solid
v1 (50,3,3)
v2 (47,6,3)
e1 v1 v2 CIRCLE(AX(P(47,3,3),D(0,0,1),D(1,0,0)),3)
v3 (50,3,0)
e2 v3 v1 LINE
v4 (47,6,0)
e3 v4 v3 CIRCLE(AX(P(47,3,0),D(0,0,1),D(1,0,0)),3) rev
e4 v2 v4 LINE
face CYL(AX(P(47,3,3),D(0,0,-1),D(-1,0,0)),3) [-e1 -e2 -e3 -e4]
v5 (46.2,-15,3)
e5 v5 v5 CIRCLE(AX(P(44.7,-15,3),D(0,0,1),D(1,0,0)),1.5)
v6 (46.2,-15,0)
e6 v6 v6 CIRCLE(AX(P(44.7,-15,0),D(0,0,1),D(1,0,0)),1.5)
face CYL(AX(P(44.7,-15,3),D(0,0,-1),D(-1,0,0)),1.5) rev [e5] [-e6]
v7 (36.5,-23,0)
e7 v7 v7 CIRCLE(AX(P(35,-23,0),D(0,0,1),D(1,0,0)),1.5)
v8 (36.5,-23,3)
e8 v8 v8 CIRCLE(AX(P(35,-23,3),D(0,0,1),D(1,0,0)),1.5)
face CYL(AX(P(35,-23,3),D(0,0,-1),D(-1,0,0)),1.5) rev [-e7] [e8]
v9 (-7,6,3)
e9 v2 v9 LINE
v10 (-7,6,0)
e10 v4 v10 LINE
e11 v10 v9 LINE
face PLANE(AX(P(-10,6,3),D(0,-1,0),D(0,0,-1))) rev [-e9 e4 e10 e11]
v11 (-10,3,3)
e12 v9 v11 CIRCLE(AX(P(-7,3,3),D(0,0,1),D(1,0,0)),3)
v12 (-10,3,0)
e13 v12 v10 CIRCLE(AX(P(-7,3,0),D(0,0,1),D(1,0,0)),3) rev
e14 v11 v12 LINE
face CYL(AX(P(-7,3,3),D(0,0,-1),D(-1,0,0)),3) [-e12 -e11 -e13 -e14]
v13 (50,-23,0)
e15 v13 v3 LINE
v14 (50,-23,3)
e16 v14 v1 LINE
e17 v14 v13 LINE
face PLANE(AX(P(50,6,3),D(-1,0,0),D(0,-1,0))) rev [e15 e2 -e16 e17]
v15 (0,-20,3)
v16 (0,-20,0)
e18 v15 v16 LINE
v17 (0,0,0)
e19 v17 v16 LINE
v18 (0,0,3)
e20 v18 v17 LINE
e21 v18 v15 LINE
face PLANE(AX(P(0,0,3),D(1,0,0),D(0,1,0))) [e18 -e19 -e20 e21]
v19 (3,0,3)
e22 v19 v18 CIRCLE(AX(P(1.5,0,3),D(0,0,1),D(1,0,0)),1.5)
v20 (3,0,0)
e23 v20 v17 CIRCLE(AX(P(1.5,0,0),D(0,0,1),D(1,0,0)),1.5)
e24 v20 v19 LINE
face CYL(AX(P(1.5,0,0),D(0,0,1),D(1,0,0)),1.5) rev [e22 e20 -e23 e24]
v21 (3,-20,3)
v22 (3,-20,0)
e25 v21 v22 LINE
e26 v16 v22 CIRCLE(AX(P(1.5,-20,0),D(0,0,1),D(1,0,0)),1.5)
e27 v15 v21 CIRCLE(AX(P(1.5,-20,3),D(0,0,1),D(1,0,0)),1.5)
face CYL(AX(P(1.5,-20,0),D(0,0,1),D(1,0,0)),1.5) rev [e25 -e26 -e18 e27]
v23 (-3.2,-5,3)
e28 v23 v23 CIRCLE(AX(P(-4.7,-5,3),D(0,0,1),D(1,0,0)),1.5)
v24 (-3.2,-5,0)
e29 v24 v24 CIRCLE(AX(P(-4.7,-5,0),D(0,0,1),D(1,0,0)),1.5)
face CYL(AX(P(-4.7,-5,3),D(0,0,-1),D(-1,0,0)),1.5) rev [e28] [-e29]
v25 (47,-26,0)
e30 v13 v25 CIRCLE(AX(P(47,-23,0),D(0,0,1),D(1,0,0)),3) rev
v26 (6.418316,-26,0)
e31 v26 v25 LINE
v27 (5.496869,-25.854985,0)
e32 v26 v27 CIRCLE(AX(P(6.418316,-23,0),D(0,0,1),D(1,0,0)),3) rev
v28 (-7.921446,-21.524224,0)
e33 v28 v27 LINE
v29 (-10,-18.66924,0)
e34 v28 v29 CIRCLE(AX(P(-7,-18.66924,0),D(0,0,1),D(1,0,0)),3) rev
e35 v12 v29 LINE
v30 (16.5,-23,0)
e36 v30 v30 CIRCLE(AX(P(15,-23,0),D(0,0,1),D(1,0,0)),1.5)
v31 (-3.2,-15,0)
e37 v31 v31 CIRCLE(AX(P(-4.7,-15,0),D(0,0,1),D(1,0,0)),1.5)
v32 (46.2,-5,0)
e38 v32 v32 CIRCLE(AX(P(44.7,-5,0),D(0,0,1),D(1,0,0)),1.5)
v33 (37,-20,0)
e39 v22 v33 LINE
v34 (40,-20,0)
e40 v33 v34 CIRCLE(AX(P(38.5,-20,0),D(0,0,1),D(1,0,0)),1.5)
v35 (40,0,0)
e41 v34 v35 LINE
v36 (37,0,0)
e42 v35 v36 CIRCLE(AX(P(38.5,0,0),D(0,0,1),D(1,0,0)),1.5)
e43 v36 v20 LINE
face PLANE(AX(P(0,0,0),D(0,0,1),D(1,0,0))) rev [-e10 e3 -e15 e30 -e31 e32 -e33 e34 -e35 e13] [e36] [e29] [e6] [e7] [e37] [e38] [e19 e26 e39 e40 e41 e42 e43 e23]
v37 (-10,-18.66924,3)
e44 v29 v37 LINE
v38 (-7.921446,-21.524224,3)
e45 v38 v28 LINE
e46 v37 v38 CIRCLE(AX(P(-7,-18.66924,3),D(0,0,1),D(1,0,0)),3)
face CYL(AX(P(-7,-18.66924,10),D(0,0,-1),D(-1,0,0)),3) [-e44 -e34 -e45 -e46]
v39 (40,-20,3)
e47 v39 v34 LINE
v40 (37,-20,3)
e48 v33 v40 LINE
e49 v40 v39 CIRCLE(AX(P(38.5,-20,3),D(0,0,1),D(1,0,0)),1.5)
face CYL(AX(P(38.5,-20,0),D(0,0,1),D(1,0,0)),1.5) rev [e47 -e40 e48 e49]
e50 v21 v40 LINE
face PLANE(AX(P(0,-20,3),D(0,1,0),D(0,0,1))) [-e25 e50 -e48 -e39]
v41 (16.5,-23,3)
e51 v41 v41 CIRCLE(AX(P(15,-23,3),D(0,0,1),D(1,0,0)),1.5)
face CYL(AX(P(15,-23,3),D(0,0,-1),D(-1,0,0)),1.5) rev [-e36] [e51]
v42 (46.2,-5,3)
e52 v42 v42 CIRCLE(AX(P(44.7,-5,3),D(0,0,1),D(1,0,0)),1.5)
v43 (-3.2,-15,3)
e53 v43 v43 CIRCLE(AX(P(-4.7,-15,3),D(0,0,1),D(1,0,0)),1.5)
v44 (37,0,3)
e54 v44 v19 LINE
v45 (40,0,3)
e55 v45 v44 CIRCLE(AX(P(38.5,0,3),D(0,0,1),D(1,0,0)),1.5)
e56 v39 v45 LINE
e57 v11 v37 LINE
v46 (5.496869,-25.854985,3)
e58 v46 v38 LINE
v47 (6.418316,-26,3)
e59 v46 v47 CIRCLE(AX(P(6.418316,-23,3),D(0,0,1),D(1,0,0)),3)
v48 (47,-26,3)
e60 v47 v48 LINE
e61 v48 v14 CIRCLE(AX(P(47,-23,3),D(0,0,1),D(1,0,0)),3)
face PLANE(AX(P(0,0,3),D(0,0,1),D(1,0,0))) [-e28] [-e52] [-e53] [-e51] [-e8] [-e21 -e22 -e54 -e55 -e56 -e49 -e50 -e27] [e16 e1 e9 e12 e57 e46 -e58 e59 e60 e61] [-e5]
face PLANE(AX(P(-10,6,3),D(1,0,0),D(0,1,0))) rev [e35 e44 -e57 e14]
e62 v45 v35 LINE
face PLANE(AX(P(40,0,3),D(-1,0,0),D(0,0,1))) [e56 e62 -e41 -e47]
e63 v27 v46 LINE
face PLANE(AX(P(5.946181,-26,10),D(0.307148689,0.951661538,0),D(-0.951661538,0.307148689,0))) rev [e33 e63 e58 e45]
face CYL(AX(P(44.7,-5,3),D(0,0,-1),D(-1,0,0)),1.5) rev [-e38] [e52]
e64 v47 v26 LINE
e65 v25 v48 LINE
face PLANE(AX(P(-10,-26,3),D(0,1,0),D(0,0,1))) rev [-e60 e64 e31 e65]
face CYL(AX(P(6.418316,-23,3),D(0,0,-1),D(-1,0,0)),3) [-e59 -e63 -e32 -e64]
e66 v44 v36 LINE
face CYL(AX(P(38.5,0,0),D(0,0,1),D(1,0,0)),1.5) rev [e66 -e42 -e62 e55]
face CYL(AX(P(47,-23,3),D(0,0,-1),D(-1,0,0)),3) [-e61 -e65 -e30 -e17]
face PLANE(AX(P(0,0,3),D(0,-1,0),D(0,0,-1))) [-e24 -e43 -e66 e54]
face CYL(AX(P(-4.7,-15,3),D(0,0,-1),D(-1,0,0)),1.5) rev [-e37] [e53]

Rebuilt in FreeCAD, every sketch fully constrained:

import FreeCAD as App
import Part
import Sketcher

V = App.Vector
Q = App.Units.Quantity


def edges_at(feature, points):
    """Names of the edges that pass closest to the given points."""
    edges = feature.Shape.Edges
    near = lambda p: min(range(len(edges)), key=lambda i: edges[i].distToShape(Part.Vertex(*p))[0])
    return sorted({f"Edge{near(p) + 1}" for p in points})

doc = App.newDocument("Part")
body = doc.addObject("PartDesign::Body", "Body")

sketch1 = body.newObject("Sketcher::SketchObject", "Sketch")
sketch1.AttachmentSupport = (doc.getObject("XY_Plane"), [""])
sketch1.MapMode = "FlatFace"
sketch1.addGeometry(Part.LineSegment(V(-10, 6, 0), V(-10, -26, 0)), False)
sketch1.addGeometry(Part.LineSegment(V(-10, -26, 0), V(50, -26, 0)), False)
sketch1.addGeometry(Part.LineSegment(V(50, -26, 0), V(50, 6, 0)), False)
sketch1.addGeometry(Part.LineSegment(V(50, 6, 0), V(-10, 6, 0)), False)
sketch1.addGeometry(Part.Circle(V(15, -23, 0), V(0, 0, 1), 1.5), False)
sketch1.addGeometry(Part.Circle(V(-4.7, -15, 0), V(0, 0, 1), 1.5), False)
sketch1.addGeometry(Part.Circle(V(35, -23, 0), V(0, 0, 1), 1.5), False)
sketch1.addGeometry(Part.Circle(V(44.7, -15, 0), V(0, 0, 1), 1.5), False)
sketch1.addGeometry(Part.LineSegment(V(40, -20, 0), V(0, -20, 0)), False)
sketch1.addGeometry(Part.LineSegment(V(0, -20, 0), V(0, 0, 0)), False)
sketch1.addGeometry(Part.LineSegment(V(0, 0, 0), V(40, 0, 0)), False)
sketch1.addGeometry(Part.LineSegment(V(40, 0, 0), V(40, -20, 0)), False)
sketch1.addGeometry(Part.Circle(V(-4.7, -5, 0), V(0, 0, 1), 1.5), False)
sketch1.addGeometry(Part.Circle(V(44.7, -5, 0), V(0, 0, 1), 1.5), False)
sketch1.addConstraint(Sketcher.Constraint("Coincident", 0, 2, 1, 1))
sketch1.addConstraint(Sketcher.Constraint("Coincident", 1, 2, 2, 1))
sketch1.addConstraint(Sketcher.Constraint("Coincident", 2, 2, 3, 1))
sketch1.addConstraint(Sketcher.Constraint("Coincident", 3, 2, 0, 1))
sketch1.addConstraint(Sketcher.Constraint("Coincident", 8, 2, 9, 1))
sketch1.addConstraint(Sketcher.Constraint("Coincident", 9, 2, 10, 1))
sketch1.addConstraint(Sketcher.Constraint("Coincident", 10, 2, 11, 1))
sketch1.addConstraint(Sketcher.Constraint("Coincident", 11, 2, 8, 1))
sketch1.addConstraint(Sketcher.Constraint("Vertical", 0))
sketch1.addConstraint(Sketcher.Constraint("Horizontal", 1))
sketch1.addConstraint(Sketcher.Constraint("Vertical", 2))
sketch1.addConstraint(Sketcher.Constraint("Horizontal", 3))
sketch1.addConstraint(Sketcher.Constraint("Horizontal", 8))
sketch1.addConstraint(Sketcher.Constraint("Vertical", 9))
sketch1.addConstraint(Sketcher.Constraint("Horizontal", 10))
sketch1.addConstraint(Sketcher.Constraint("Vertical", 11))
sketch1.addConstraint(Sketcher.Constraint("Coincident", 9, 2, -1, 1))
sketch1.addConstraint(Sketcher.Constraint("Equal", 4, 5))
sketch1.addConstraint(Sketcher.Constraint("Equal", 5, 6))
sketch1.addConstraint(Sketcher.Constraint("Equal", 6, 7))
sketch1.addConstraint(Sketcher.Constraint("Equal", 7, 12))
sketch1.addConstraint(Sketcher.Constraint("Equal", 12, 13))
sketch1.addConstraint(Sketcher.Constraint("Horizontal", 4, 3, 6, 3))
sketch1.addConstraint(Sketcher.Constraint("Horizontal", 5, 3, 7, 3))
sketch1.addConstraint(Sketcher.Constraint("Horizontal", 12, 3, 13, 3))
sketch1.addConstraint(Sketcher.Constraint("Vertical", 5, 3, 12, 3))
sketch1.addConstraint(Sketcher.Constraint("Vertical", 7, 3, 13, 3))
sketch1.addConstraint(Sketcher.Constraint("Diameter", 4, Q("3 mm")))
sketch1.addConstraint(Sketcher.Constraint("DistanceX", 1, 1, 1, 2, Q("60 mm")))
sketch1.addConstraint(Sketcher.Constraint("DistanceX", 8, 2, 8, 1, Q("40 mm")))
sketch1.addConstraint(Sketcher.Constraint("DistanceY", 0, 2, 0, 1, Q("32 mm")))
sketch1.addConstraint(Sketcher.Constraint("DistanceY", 9, 1, 9, 2, Q("20 mm")))
sketch1.addConstraint(Sketcher.Constraint("DistanceX", -1, 1, 4, 3, Q("15 mm")))
sketch1.addConstraint(Sketcher.Constraint("DistanceY", 4, 3, -1, 1, Q("23 mm")))
sketch1.addConstraint(Sketcher.Constraint("DistanceY", 5, 3, -1, 1, Q("15 mm")))
sketch1.addConstraint(Sketcher.Constraint("DistanceX", -1, 1, 6, 3, Q("35 mm")))
sketch1.addConstraint(Sketcher.Constraint("DistanceY", 12, 3, -1, 1, Q("5 mm")))
sketch1.addConstraint(Sketcher.Constraint("DistanceX", 0, 2, -1, 1, Q("10 mm")))
sketch1.addConstraint(Sketcher.Constraint("DistanceY", 0, 2, -1, 1, Q("26 mm")))
sketch1.addConstraint(Sketcher.Constraint("DistanceX", 5, 3, -1, 1, Q("4.7 mm")))
sketch1.addConstraint(Sketcher.Constraint("DistanceX", -1, 1, 7, 3, Q("44.7 mm")))
pad1 = body.newObject("PartDesign::Pad", "Pad")
pad1.Profile = sketch1
pad1.Length = 3

sketch2 = body.newObject("Sketcher::SketchObject", "Sketch001")
sketch2.AttachmentSupport = (doc.getObject("XY_Plane"), [""])
sketch2.MapMode = "FlatFace"
sketch2.AttachmentOffset = App.Placement(V(0, 0, 3), App.Rotation())
sketch2.addGeometry(Part.Circle(V(1.5, 0, 0), V(0, 0, 1), 1.5), False)
sketch2.addGeometry(Part.Circle(V(38.5, 0, 0), V(0, 0, 1), 1.5), False)
sketch2.addGeometry(Part.Circle(V(38.5, -20, 0), V(0, 0, 1), 1.5), False)
sketch2.addGeometry(Part.Circle(V(1.5, -20, 0), V(0, 0, 1), 1.5), False)
sketch2.addConstraint(Sketcher.Constraint("Equal", 0, 1))
sketch2.addConstraint(Sketcher.Constraint("Equal", 1, 2))
sketch2.addConstraint(Sketcher.Constraint("Equal", 2, 3))
sketch2.addConstraint(Sketcher.Constraint("PointOnObject", 0, 3, -1))
sketch2.addConstraint(Sketcher.Constraint("PointOnObject", 1, 3, -1))
sketch2.addConstraint(Sketcher.Constraint("Horizontal", 2, 3, 3, 3))
sketch2.addConstraint(Sketcher.Constraint("Vertical", 1, 3, 2, 3))
sketch2.addConstraint(Sketcher.Constraint("Vertical", 0, 3, 3, 3))
sketch2.addConstraint(Sketcher.Constraint("Diameter", 0, Q("3 mm")))
sketch2.addConstraint(Sketcher.Constraint("DistanceY", 2, 3, -1, 1, Q("20 mm")))
sketch2.addConstraint(Sketcher.Constraint("DistanceX", 0, 3, 1, 3, Q("37 mm")))
sketch2.addConstraint(Sketcher.Constraint("DistanceX", -1, 1, 0, 3, Q("1.5 mm")))
pocket1 = body.newObject("PartDesign::Pocket", "Pocket")
pocket1.Profile = sketch2
pocket1.Length = 3
doc.recompute()

fillet = body.newObject("PartDesign::Fillet", "Fillet")
fillet.Base = (pocket1, edges_at(pocket1, [
    (-10, 6, 1.5),
    (50, 6, 1.5),
    (50, -26, 1.5),
    (-10, -26, 1.5),
]))
fillet.Radius = 3

sketch3 = body.newObject("Sketcher::SketchObject", "Sketch002")
sketch3.AttachmentSupport = (doc.getObject("XY_Plane"), [""])
sketch3.MapMode = "FlatFace"
sketch3.addGeometry(Part.LineSegment(V(-10, -20.853371, 0), V(5.946181, -26, 0)), False)
sketch3.addGeometry(Part.LineSegment(V(5.946181, -26, 0), V(-15.489212, -37.273669, 0)), False)
sketch3.addGeometry(Part.LineSegment(V(-15.489212, -37.273669, 0), V(-10, -20.853371, 0)), False)
sketch3.addConstraint(Sketcher.Constraint("Coincident", 0, 2, 1, 1))
sketch3.addConstraint(Sketcher.Constraint("Coincident", 1, 2, 2, 1))
sketch3.addConstraint(Sketcher.Constraint("Coincident", 2, 2, 0, 1))
sketch3.addConstraint(Sketcher.Constraint("DistanceY", 0, 2, -1, 1, Q("26 mm")))
sketch3.addConstraint(Sketcher.Constraint("DistanceX", 2, 2, -1, 1, Q("10 mm")))
sketch3.addConstraint(Sketcher.Constraint("DistanceY", 1, 2, 2, 2, Q("16.420298 mm")))
sketch3.addConstraint(Sketcher.Constraint("Distance", 2, Q("17.31351 mm")))
sketch3.addConstraint(Sketcher.Constraint("DistanceX", -1, 1, 0, 2, Q("5.946181 mm")))
sketch3.addConstraint(Sketcher.Constraint("DistanceY", 1, 2, -1, 1, Q("37.273669 mm")))
pocket2 = body.newObject("PartDesign::Pocket", "Pocket001")
pocket2.Profile = sketch3
pocket2.Length = 10
pocket2.Reversed = True
doc.recompute()

fillet2 = body.newObject("PartDesign::Fillet", "Fillet001")
fillet2.Base = (pocket2, edges_at(pocket2, [(5.946, -26, 1.5), (-10, -20.853, 1.5)]))
fillet2.Radius = 3

doc.recompute()
